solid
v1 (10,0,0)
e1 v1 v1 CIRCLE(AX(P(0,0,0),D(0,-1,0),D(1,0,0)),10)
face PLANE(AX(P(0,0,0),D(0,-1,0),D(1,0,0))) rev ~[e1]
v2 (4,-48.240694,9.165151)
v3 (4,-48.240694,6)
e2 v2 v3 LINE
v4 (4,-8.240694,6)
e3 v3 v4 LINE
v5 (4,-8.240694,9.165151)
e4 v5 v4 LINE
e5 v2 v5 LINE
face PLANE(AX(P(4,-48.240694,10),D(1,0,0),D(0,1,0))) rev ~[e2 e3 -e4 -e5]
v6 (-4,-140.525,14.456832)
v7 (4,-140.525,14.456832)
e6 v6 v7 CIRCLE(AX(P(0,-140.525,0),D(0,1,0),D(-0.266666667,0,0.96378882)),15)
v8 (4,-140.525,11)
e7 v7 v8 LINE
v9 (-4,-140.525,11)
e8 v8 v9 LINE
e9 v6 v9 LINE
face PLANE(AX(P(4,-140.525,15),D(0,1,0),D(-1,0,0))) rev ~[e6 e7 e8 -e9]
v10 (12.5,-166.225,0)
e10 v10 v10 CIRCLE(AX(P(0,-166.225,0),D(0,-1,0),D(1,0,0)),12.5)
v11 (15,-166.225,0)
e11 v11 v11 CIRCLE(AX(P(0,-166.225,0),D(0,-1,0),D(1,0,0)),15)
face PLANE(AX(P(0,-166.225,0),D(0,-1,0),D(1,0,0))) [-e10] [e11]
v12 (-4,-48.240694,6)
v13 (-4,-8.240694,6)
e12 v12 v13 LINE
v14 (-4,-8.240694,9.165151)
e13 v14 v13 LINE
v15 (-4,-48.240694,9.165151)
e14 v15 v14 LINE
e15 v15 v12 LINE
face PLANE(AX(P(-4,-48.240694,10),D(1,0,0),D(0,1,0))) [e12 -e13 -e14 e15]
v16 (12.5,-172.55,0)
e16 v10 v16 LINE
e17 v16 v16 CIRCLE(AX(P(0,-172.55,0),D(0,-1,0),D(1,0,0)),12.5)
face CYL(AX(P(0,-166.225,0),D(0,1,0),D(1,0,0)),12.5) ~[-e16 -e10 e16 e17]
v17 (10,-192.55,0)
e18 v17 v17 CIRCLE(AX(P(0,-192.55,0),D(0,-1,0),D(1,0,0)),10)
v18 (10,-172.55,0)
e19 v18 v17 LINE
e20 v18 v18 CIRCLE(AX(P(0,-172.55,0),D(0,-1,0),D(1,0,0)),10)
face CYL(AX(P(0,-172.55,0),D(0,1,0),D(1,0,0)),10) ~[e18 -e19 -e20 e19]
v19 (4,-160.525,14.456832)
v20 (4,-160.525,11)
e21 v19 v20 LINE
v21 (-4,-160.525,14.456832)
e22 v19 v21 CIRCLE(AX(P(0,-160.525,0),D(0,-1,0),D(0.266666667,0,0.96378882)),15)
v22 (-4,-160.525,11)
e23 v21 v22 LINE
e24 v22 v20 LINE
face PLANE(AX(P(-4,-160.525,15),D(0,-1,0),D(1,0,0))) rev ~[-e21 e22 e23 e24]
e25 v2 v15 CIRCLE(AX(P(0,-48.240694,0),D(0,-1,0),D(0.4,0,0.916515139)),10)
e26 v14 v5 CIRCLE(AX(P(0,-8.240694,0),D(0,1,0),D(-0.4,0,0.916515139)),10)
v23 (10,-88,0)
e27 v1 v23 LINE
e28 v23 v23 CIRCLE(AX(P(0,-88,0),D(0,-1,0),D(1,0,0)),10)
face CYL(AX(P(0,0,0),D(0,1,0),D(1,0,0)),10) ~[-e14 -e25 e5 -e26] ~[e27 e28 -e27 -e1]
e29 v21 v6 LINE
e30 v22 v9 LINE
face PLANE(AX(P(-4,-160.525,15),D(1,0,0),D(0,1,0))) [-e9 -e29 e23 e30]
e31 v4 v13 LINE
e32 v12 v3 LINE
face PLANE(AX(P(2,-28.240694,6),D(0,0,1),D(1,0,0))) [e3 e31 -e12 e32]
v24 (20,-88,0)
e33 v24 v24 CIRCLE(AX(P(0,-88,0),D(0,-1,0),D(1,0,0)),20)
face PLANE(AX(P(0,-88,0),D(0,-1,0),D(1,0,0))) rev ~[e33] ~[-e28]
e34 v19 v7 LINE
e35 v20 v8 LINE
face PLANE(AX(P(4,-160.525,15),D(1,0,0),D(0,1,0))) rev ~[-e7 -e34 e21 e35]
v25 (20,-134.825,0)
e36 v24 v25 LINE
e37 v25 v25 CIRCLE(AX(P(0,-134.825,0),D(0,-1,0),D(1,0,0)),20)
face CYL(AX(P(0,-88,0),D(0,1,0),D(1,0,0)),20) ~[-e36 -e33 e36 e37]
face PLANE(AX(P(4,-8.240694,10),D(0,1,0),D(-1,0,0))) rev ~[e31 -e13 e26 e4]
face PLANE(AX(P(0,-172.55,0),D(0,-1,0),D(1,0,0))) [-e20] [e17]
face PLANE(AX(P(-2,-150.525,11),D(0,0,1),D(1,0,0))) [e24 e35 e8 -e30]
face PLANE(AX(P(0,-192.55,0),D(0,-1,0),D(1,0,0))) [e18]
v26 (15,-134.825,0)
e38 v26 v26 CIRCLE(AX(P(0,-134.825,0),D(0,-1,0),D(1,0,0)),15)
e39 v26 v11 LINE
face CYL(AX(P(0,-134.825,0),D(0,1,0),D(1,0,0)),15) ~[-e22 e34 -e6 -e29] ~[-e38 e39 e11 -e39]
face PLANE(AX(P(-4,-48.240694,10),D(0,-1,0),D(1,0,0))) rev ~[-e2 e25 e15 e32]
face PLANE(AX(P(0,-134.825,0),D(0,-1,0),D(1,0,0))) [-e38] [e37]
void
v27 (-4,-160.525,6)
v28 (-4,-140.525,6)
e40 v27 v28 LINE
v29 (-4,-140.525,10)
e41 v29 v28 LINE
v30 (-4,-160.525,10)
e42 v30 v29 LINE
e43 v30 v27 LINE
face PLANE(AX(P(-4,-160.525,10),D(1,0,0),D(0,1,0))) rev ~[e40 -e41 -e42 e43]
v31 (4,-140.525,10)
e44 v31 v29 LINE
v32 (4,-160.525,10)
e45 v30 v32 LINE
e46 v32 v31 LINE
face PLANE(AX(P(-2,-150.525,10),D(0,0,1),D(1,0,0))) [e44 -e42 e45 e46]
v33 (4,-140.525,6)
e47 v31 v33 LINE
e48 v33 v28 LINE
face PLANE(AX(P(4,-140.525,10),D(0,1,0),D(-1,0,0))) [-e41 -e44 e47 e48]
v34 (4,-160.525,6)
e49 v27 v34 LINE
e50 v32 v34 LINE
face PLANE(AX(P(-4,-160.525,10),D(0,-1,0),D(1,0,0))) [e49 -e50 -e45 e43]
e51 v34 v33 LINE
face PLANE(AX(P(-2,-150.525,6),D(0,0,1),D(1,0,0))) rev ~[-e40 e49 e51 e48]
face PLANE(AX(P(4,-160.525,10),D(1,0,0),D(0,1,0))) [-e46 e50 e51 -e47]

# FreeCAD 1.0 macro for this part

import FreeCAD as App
import Part
import Sketcher


def add_polygon(sketch, points):
    """Adds a closed chain of lines whose ends are joined by coincident constraints."""
    first, n = sketch.GeometryCount, len(points)
    for a, b in zip(points, points[1:] + points[:1]):
        sketch.addGeometry(Part.LineSegment(App.Vector(*a, 0), App.Vector(*b, 0)), False)
    for i in range(n):
        sketch.addConstraint(Sketcher.Constraint("Coincident", first + i, 2, first + (i + 1) % n, 1))

doc = App.newDocument("Part")
body = doc.addObject("PartDesign::Body", "Body")

# Sketch on XZ plane
sketch1 = doc.addObject("Sketcher::SketchObject", "Sketch")
body.addObject(sketch1)
sketch1.AttachmentSupport = (doc.XZ_Plane, [""])
sketch1.MapMode = "FlatFace"
sketch1.addGeometry(Part.Circle(App.Vector(0, 0, 0), App.Vector(0, 0, 1), 10), False)
sketch1.addConstraint(Sketcher.Constraint("Coincident", 0, 3, -1, 1))
sketch1.addConstraint(Sketcher.Constraint("Diameter", 0, 20.0))
pad1 = doc.addObject("PartDesign::Pad", "Pad")
body.addObject(pad1)
pad1.Profile = sketch1
pad1.Length = 88

# Sketch on XZ plane
sketch2 = doc.addObject("Sketcher::SketchObject", "Sketch001")
body.addObject(sketch2)
sketch2.AttachmentSupport = (doc.XZ_Plane, [""])
sketch2.MapMode = "FlatFace"
sketch2.AttachmentOffset = App.Placement(App.Vector(0, 0, 88), App.Rotation())
sketch2.addGeometry(Part.Circle(App.Vector(0, 0, 0), App.Vector(0, 0, 1), 20), False)
sketch2.addConstraint(Sketcher.Constraint("Coincident", 0, 3, -1, 1))
sketch2.addConstraint(Sketcher.Constraint("Diameter", 0, 40.0))
pad2 = doc.addObject("PartDesign::Pad", "Pad001")
body.addObject(pad2)
pad2.Profile = sketch2
pad2.Length = 46.825

# Sketch on XZ plane
sketch3 = doc.addObject("Sketcher::SketchObject", "Sketch002")
body.addObject(sketch3)
sketch3.AttachmentSupport = (doc.XZ_Plane, [""])
sketch3.MapMode = "FlatFace"
sketch3.AttachmentOffset = App.Placement(App.Vector(0, 0, 134.825), App.Rotation())
sketch3.addGeometry(Part.Circle(App.Vector(0, 0, 0), App.Vector(0, 0, 1), 15), False)
sketch3.addConstraint(Sketcher.Constraint("Coincident", 0, 3, -1, 1))
sketch3.addConstraint(Sketcher.Constraint("Diameter", 0, 30.0))
pad3 = doc.addObject("PartDesign::Pad", "Pad002")
body.addObject(pad3)
pad3.Profile = sketch3
pad3.Length = 31.4

# Sketch on XZ plane
sketch4 = doc.addObject("Sketcher::SketchObject", "Sketch003")
body.addObject(sketch4)
sketch4.AttachmentSupport = (doc.XZ_Plane, [""])
sketch4.MapMode = "FlatFace"
sketch4.AttachmentOffset = App.Placement(App.Vector(0, 0, 166.225), App.Rotation())
sketch4.addGeometry(Part.Circle(App.Vector(0, 0, 0), App.Vector(0, 0, 1), 12), False)
sketch4.addConstraint(Sketcher.Constraint("Coincident", 0, 3, -1, 1))
sketch4.addConstraint(Sketcher.Constraint("Diameter", 0, 25.0))
pad4 = doc.addObject("PartDesign::Pad", "Pad003")
body.addObject(pad4)
pad4.Profile = sketch4
pad4.Length = 6.325

# Sketch on XZ plane
sketch5 = doc.addObject("Sketcher::SketchObject", "Sketch004")
body.addObject(sketch5)
sketch5.AttachmentSupport = (doc.XZ_Plane, [""])
sketch5.MapMode = "FlatFace"
sketch5.AttachmentOffset = App.Placement(App.Vector(0, 0, 172.55), App.Rotation())
sketch5.addGeometry(Part.Circle(App.Vector(0, 0, 0), App.Vector(0, 0, 1), 10), False)
sketch5.addConstraint(Sketcher.Constraint("Coincident", 0, 3, -1, 1))
sketch5.addConstraint(Sketcher.Constraint("Diameter", 0, 20.0))
pad5 = doc.addObject("PartDesign::Pad", "Pad004")
body.addObject(pad5)
pad5.Profile = sketch5
pad5.Length = 20

# Sketch on XY plane
sketch6 = doc.addObject("Sketcher::SketchObject", "Sketch005")
body.addObject(sketch6)
sketch6.AttachmentSupport = (doc.XY_Plane, [""])
sketch6.MapMode = "FlatFace"
sketch6.AttachmentOffset = App.Placement(App.Vector(0, 0, 10), App.Rotation())
add_polygon(sketch6, [(4, -48), (4, -8), (-4, -8), (-4, -48)])  # lines 0-3
add_polygon(sketch6, [(-4, -141), (-4, -161), (4, -161), (4, -141)])  # lines 4-7
sketch6.addConstraint(Sketcher.Constraint("Vertical", 0))
sketch6.addConstraint(Sketcher.Constraint("Horizontal", 1))
sketch6.addConstraint(Sketcher.Constraint("Vertical", 2))
sketch6.addConstraint(Sketcher.Constraint("Horizontal", 3))
sketch6.addConstraint(Sketcher.Constraint("Vertical", 4))
sketch6.addConstraint(Sketcher.Constraint("Horizontal", 5))
sketch6.addConstraint(Sketcher.Constraint("Vertical", 6))
sketch6.addConstraint(Sketcher.Constraint("Horizontal", 7))
sketch6.addConstraint(Sketcher.Constraint("Vertical", 2, 2, 4, 2))
sketch6.addConstraint(Sketcher.Constraint("Vertical", 3, 2, 5, 2))
sketch6.addConstraint(Sketcher.Constraint("DistanceX", 1, 2, 1, 1, 8.0))
sketch6.addConstraint(Sketcher.Constraint("DistanceY", 0, 1, 0, 2, 40.0))
sketch6.addConstraint(Sketcher.Constraint("DistanceY", 4, 2, 4, 1, 20.0))
sketch6.addConstraint(Sketcher.Constraint("DistanceX", -1, 1, 0, 2, 4.0))
sketch6.addConstraint(Sketcher.Constraint("DistanceY", 4, 2, -1, 1, 160.525))
sketch6.addConstraint(Sketcher.Constraint("DistanceY", 0, 2, -1, 1, 8.240694))
pocket1 = doc.addObject("PartDesign::Pocket", "Pocket")
body.addObject(pocket1)
pocket1.Profile = sketch6
pocket1.Length = 4

# Sketch on XY plane
sketch7 = doc.addObject("Sketcher::SketchObject", "Sketch006")
body.addObject(sketch7)
sketch7.AttachmentSupport = (doc.XY_Plane, [""])
sketch7.MapMode = "FlatFace"
sketch7.AttachmentOffset = App.Placement(App.Vector(0, 0, 15), App.Rotation())
add_polygon(sketch7, [(-4, -141), (-4, -161), (4, -161), (4, -141)])  # lines 0-3
sketch7.addConstraint(Sketcher.Constraint("Vertical", 0))
sketch7.addConstraint(Sketcher.Constraint("Horizontal", 1))
sketch7.addConstraint(Sketcher.Constraint("Vertical", 2))
sketch7.addConstraint(Sketcher.Constraint("Horizontal", 3))
sketch7.addConstraint(Sketcher.Constraint("DistanceX", 1, 1, 1, 2, 8.0))
sketch7.addConstraint(Sketcher.Constraint("DistanceY", 0, 2, 0, 1, 20.0))
sketch7.addConstraint(Sketcher.Constraint("DistanceX", 0, 2, -1, 1, 4.0))
sketch7.addConstraint(Sketcher.Constraint("DistanceY", 0, 2, -1, 1, 160.525))
pocket2 = doc.addObject("PartDesign::Pocket", "Pocket001")
body.addObject(pocket2)
pocket2.Profile = sketch7
pocket2.Length = 4

doc.recompute()
